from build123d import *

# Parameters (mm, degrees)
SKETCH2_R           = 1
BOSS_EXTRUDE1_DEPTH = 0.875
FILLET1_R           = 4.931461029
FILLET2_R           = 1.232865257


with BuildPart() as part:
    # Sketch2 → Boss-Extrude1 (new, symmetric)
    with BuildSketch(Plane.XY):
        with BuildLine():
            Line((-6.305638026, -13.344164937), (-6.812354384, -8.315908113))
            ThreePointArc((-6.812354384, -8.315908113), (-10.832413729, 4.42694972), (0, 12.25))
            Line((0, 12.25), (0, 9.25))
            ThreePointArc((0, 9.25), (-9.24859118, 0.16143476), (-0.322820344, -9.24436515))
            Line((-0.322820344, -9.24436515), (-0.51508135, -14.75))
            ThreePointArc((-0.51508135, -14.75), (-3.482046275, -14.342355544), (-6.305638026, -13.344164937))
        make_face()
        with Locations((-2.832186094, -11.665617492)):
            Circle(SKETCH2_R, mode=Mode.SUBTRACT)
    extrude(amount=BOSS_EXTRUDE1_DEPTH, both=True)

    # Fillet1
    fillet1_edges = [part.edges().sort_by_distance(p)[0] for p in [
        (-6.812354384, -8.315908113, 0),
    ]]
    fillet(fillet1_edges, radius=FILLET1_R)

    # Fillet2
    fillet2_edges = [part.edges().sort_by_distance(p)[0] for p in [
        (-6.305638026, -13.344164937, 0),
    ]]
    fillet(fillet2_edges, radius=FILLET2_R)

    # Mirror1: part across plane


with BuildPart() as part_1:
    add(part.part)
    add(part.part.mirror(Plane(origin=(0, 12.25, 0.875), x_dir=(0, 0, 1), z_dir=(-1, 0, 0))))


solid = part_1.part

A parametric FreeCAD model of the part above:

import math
import FreeCAD as App
import Part
import Sketcher
from FreeCAD import Vector
Q = App.Units.Quantity


def edges_at(feature, points):
    """Names of the edges that pass closest to the given points."""
    edges = feature.Shape.Edges
    near = lambda p: min(range(len(edges)), key=lambda i: edges[i].distToShape(Part.Vertex(*p))[0])
    return sorted({f"Edge{near(p) + 1}" for p in points})

doc = App.newDocument("Part")
body = doc.addObject("PartDesign::Body", "Body")

sketch1 = body.newObject("Sketcher::SketchObject", "Sketch")
sketch1.AttachmentSupport = (doc.getObject("XY_Plane"), [""])
sketch1.MapMode = "FlatFace"
sketch1.addGeometry([
    Part.LineSegment(Vector(-6.8, -8.3, 0), Vector(-6.3, -13.3, 0)),
    Part.ArcOfCircle(Part.Circle(Vector(0, 0, 0), Vector(0, 0, 1), 14.8), math.radians(-115), math.radians(-92)),
    Part.LineSegment(Vector(-0.5, -14.8, 0), Vector(-0.3, -9.2, 0)),
    Part.ArcOfCircle(Part.Circle(Vector(0, 0, 0), Vector(0, 0, 1), 9.2), math.radians(90), math.radians(268)),
    Part.LineSegment(Vector(0, 9.2, 0), Vector(0, 12.2, 0)),
    Part.ArcOfCircle(Part.Circle(Vector(0, 0.8, 0), Vector(0, 0, 1), 11.4), math.radians(90), math.radians(233)),
    Part.Circle(Vector(-2.8, -11.7, 0), Vector(0, 0, 1), 1),
], False)
sketch1.addConstraint([
    Sketcher.Constraint("Coincident", 0, 2, 1, 1),
    Sketcher.Constraint("Coincident", 1, 2, 2, 1),
    Sketcher.Constraint("Coincident", 2, 2, 3, 2),
    Sketcher.Constraint("Coincident", 3, 1, 4, 1),
    Sketcher.Constraint("Coincident", 4, 2, 5, 1),
    Sketcher.Constraint("Coincident", 5, 2, 0, 1),
    Sketcher.Constraint("Vertical", 4),
    Sketcher.Constraint("Coincident", 1, 3, -1, 1),
    Sketcher.Constraint("Coincident", 3, 3, -1, 1),
    Sketcher.Constraint("PointOnObject", 5, 3, -2),
    Sketcher.Constraint("PointOnObject", 3, 1, -2),
    Sketcher.Constraint("Diameter", 6, Q("2 mm")),
    Sketcher.Constraint("DistanceY", 4, 1, 4, 2, Q("3 mm")),
    Sketcher.Constraint("Angle", 2, Q("88 deg")),
    Sketcher.Constraint("Radius", 3, Q("9.25 mm")),
    Sketcher.Constraint("DistanceY", 1, 2, -1, 1, Q("14.75 mm")),
    Sketcher.Constraint("Radius", 1, Q("14.758991 mm")),
    Sketcher.Constraint("Radius", 5, Q("11.411233 mm")),
    Sketcher.Constraint("DistanceY", 0, 2, 2, 2, Q("4.0998 mm")),
    Sketcher.Constraint("DistanceY", 5, 2, -1, 1, Q("8.315908 mm")),
    Sketcher.Constraint("DistanceX", 0, 2, 6, 3, Q("3.473452 mm")),
    Sketcher.Constraint("DistanceY", 6, 3, 5, 2, Q("3.349709 mm")),
])
pad1 = body.newObject("PartDesign::Pad", "Pad")
pad1.Profile = sketch1
pad1.Length = 1.75
pad1.Midplane = True
doc.recompute()

fillet = body.newObject("PartDesign::Fillet", "Fillet")
fillet.Base = (pad1, edges_at(pad1, [(-6.812, -8.316, 0)]))
fillet.Radius = 4.931461
doc.recompute()

fillet2 = body.newObject("PartDesign::Fillet", "Fillet001")
fillet2.Base = (fillet, edges_at(fillet, [(-6.306, -13.344, 0)]))
fillet2.Radius = 1.232865
body2 = doc.addObject("PartDesign::Body", "Body001")
doc.recompute()

body2.BaseFeature = body
doc.recompute()

mirroring = doc.addObject("Part::Mirroring", "Mirroring")
mirroring.Source = body
mirroring.Base = Vector(0, 12.25, 0.875)
mirroring.Normal = Vector(-1, 0, 0)
body3 = doc.addObject("PartDesign::Body", "Body002")
body3.BaseFeature = mirroring
boolean = body2.newObject("PartDesign::Boolean", "Boolean")
boolean.Type = "Fuse"
boolean.addObjects([body3])
doc.recompute()
mirroring.Visibility = False

doc.recompute()
